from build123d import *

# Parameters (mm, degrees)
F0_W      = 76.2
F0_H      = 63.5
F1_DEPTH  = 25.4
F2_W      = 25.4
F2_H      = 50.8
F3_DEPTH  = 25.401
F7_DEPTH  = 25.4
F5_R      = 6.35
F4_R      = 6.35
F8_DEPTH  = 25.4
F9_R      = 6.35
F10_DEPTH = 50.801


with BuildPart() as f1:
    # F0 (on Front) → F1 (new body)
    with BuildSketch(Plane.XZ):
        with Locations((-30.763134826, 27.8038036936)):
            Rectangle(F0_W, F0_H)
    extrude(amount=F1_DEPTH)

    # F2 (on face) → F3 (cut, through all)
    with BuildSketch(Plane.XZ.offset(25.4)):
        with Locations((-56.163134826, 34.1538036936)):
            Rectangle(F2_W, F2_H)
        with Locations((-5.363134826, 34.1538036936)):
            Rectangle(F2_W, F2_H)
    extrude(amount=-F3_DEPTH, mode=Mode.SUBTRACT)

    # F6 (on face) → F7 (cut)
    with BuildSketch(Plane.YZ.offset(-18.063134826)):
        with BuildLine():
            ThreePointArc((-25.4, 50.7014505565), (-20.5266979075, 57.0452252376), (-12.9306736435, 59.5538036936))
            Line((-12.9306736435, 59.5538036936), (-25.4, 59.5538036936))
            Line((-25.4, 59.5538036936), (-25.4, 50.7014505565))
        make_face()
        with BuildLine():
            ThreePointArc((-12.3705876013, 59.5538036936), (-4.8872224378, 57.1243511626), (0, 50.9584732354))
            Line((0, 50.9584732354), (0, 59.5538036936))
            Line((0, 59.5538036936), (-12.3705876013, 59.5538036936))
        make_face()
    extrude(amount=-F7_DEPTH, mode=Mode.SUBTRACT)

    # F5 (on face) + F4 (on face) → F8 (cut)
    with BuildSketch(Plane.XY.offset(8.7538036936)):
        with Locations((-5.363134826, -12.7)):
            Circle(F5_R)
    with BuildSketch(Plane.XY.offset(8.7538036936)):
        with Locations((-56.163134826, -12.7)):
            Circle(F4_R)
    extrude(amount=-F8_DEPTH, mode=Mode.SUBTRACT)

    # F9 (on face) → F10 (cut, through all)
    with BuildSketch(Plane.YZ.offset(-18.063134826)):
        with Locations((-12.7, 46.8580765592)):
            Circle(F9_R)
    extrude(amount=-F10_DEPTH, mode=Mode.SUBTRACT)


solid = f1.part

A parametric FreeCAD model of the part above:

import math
import FreeCAD as App
import Part
import Sketcher

V = App.Vector
Q = App.Units.Quantity


def add_polygon(sketch, points):
    """Adds a closed chain of lines whose ends are joined by coincident constraints."""
    first, n = sketch.GeometryCount, len(points)
    for a, b in zip(points, points[1:] + points[:1]):
        sketch.addGeometry(Part.LineSegment(App.Vector(*a, 0), App.Vector(*b, 0)), False)
    for i in range(n):
        sketch.addConstraint(Sketcher.Constraint("Coincident", first + i, 2, first + (i + 1) % n, 1))

doc = App.newDocument("Part")
body = doc.addObject("PartDesign::Body", "Body")

# Sketch on XZ plane
sketch1 = doc.addObject("Sketcher::SketchObject", "Sketch")
body.addObject(sketch1)
sketch1.AttachmentSupport = (doc.XZ_Plane, [""])
sketch1.MapMode = "FlatFace"
add_polygon(sketch1, [(-69, 60), (-69, -4), (7, -4), (7, 60)])  # lines 0-3
sketch1.addConstraint(Sketcher.Constraint("Vertical", 0))
sketch1.addConstraint(Sketcher.Constraint("Horizontal", 1))
sketch1.addConstraint(Sketcher.Constraint("Vertical", 2))
sketch1.addConstraint(Sketcher.Constraint("Horizontal", 3))
sketch1.addConstraint(Sketcher.Constraint("DistanceX", 1, 1, 1, 2, Q("3 in")))
sketch1.addConstraint(Sketcher.Constraint("DistanceY", 0, 2, 0, 1, Q("2.5 in")))
sketch1.addConstraint(Sketcher.Constraint("DistanceX", 0, 2, -1, 1, 68.863135))
sketch1.addConstraint(Sketcher.Constraint("DistanceY", 0, 2, -1, 1, 3.946196))
pad1 = doc.addObject("PartDesign::Pad", "Pad")
body.addObject(pad1)
pad1.Profile = sketch1
pad1.Length = Q("1 in")

# Sketch on XZ plane
sketch2 = doc.addObject("Sketcher::SketchObject", "Sketch001")
body.addObject(sketch2)
sketch2.AttachmentSupport = (doc.XZ_Plane, [""])
sketch2.MapMode = "FlatFace"
sketch2.AttachmentOffset = App.Placement(V(0, 0, 1 * 25.4), App.Rotation())
add_polygon(sketch2, [(-69, 60), (-69, 9), (-43, 9), (-43, 60)])  # lines 0-3
add_polygon(sketch2, [(-18, 60), (-18, 9), (7, 9), (7, 60)])  # lines 4-7
sketch2.addConstraint(Sketcher.Constraint("Vertical", 0))
sketch2.addConstraint(Sketcher.Constraint("Horizontal", 1))
sketch2.addConstraint(Sketcher.Constraint("Vertical", 2))
sketch2.addConstraint(Sketcher.Constraint("Horizontal", 3))
sketch2.addConstraint(Sketcher.Constraint("Vertical", 4))
sketch2.addConstraint(Sketcher.Constraint("Horizontal", 5))
sketch2.addConstraint(Sketcher.Constraint("Vertical", 6))
sketch2.addConstraint(Sketcher.Constraint("Horizontal", 7))
sketch2.addConstraint(Sketcher.Constraint("Horizontal", 1, 2, 4, 2))
sketch2.addConstraint(Sketcher.Constraint("Horizontal", 3, 2, 6, 2))
sketch2.addConstraint(Sketcher.Constraint("Equal", 3, 5))
sketch2.addConstraint(Sketcher.Constraint("DistanceX", 1, 1, 1, 2, Q("1 in")))
sketch2.addConstraint(Sketcher.Constraint("DistanceY", 0, 2, 0, 1, Q("2 in")))
sketch2.addConstraint(Sketcher.Constraint("DistanceX", 1, 2, 4, 2, Q("1 in")))
sketch2.addConstraint(Sketcher.Constraint("DistanceX", 0, 2, -1, 1, 68.863135))
sketch2.addConstraint(Sketcher.Constraint("DistanceY", -1, 1, 0, 2, 8.753804))
pocket1 = doc.addObject("PartDesign::Pocket", "Pocket")
body.addObject(pocket1)
pocket1.Profile = sketch2
pocket1.Type = "ThroughAll"

# Sketch on YZ plane
sketch3 = doc.addObject("Sketcher::SketchObject", "Sketch002")
body.addObject(sketch3)
sketch3.AttachmentSupport = (doc.YZ_Plane, [""])
sketch3.MapMode = "FlatFace"
sketch3.AttachmentOffset = App.Placement(V(0, 0, -18.063135), App.Rotation())
sketch3.addGeometry(Part.ArcOfCircle(Part.Circle(V(-13, 46, 0), V(0, 0, 1), 14), math.radians(91), math.radians(160)), False)
sketch3.addGeometry(Part.LineSegment(V(-13, 60, 0), V(-25, 60, 0)), False)
sketch3.addGeometry(Part.LineSegment(V(-25, 60, 0), V(-25, 51, 0)), False)
sketch3.addGeometry(Part.ArcOfCircle(Part.Circle(V(-13, 46, 0), V(0, 0, 1), 14), math.radians(22), math.radians(89)), False)
sketch3.addGeometry(Part.LineSegment(V(0, 51, 0), V(0, 60, 0)), False)
sketch3.addGeometry(Part.LineSegment(V(0, 60, 0), V(-12, 60, 0)), False)
sketch3.addConstraint(Sketcher.Constraint("Coincident", 0, 1, 1, 1))
sketch3.addConstraint(Sketcher.Constraint("Coincident", 1, 2, 2, 1))
sketch3.addConstraint(Sketcher.Constraint("Coincident", 2, 2, 0, 2))
sketch3.addConstraint(Sketcher.Constraint("Coincident", 3, 1, 4, 1))
sketch3.addConstraint(Sketcher.Constraint("Coincident", 4, 2, 5, 1))
sketch3.addConstraint(Sketcher.Constraint("Coincident", 5, 2, 3, 2))
sketch3.addConstraint(Sketcher.Constraint("Horizontal", 1))
sketch3.addConstraint(Sketcher.Constraint("Vertical", 2))
sketch3.addConstraint(Sketcher.Constraint("Vertical", 4))
sketch3.addConstraint(Sketcher.Constraint("Horizontal", 5))
sketch3.addConstraint(Sketcher.Constraint("Coincident", 3, 3, 0, 3))
sketch3.addConstraint(Sketcher.Constraint("Equal", 0, 3))
sketch3.addConstraint(Sketcher.Constraint("PointOnObject", 3, 1, -2))
sketch3.addConstraint(Sketcher.Constraint("Horizontal", 1, 2, 4, 2))
sketch3.addConstraint(Sketcher.Constraint("DistanceX", 1, 2, -1, 1, Q("1 in")))
sketch3.addConstraint(Sketcher.Constraint("Radius", 0, 13.605602))
sketch3.addConstraint(Sketcher.Constraint("DistanceY", 4, 1, 4, 2, 8.59533))
sketch3.addConstraint(Sketcher.Constraint("DistanceX", 1, 2, 1, 1, 12.469326))
sketch3.addConstraint(Sketcher.Constraint("DistanceY", -1, 1, 2, 2, 50.701451))
pocket2 = doc.addObject("PartDesign::Pocket", "Pocket001")
body.addObject(pocket2)
pocket2.Profile = sketch3
pocket2.Length = Q("1 in")

# Sketch on XY plane
sketch4 = doc.addObject("Sketcher::SketchObject", "Sketch003")
body.addObject(sketch4)
sketch4.AttachmentSupport = (doc.XY_Plane, [""])
sketch4.MapMode = "FlatFace"
sketch4.AttachmentOffset = App.Placement(V(0, 0, 8.753804), App.Rotation())
sketch4.addGeometry(Part.Circle(V(-5, -13, 0), V(0, 0, 1), 6), False)
sketch4.addGeometry(Part.Circle(V(-56, -13, 0), V(0, 0, 1), 6), False)
sketch4.addConstraint(Sketcher.Constraint("Equal", 0, 1))
sketch4.addConstraint(Sketcher.Constraint("Horizontal", 0, 3, 1, 3))
sketch4.addConstraint(Sketcher.Constraint("Diameter", 0, Q("0.5 in")))
sketch4.addConstraint(Sketcher.Constraint("DistanceX", 1, 3, 0, 3, Q("2 in")))
sketch4.addConstraint(Sketcher.Constraint("DistanceY", 0, 3, -1, 1, Q("0.5 in")))
sketch4.addConstraint(Sketcher.Constraint("DistanceX", 0, 3, -1, 1, 5.363135))
pocket3 = doc.addObject("PartDesign::Pocket", "Pocket002")
body.addObject(pocket3)
pocket3.Profile = sketch4
pocket3.Length = Q("1 in")

# Sketch on YZ plane
sketch5 = doc.addObject("Sketcher::SketchObject", "Sketch004")
body.addObject(sketch5)
sketch5.AttachmentSupport = (doc.YZ_Plane, [""])
sketch5.MapMode = "FlatFace"
sketch5.AttachmentOffset = App.Placement(V(0, 0, -18.063135), App.Rotation())
sketch5.addGeometry(Part.Circle(V(-13, 47, 0), V(0, 0, 1), 6), False)
sketch5.addConstraint(Sketcher.Constraint("Diameter", 0, Q("0.5 in")))
sketch5.addConstraint(Sketcher.Constraint("DistanceX", 0, 3, -1, 1, Q("0.5 in")))
sketch5.addConstraint(Sketcher.Constraint("DistanceY", -1, 1, 0, 3, 46.858077))
pocket4 = doc.addObject("PartDesign::Pocket", "Pocket003")
body.addObject(pocket4)
pocket4.Profile = sketch5
pocket4.Type = "ThroughAll"

doc.recompute()
